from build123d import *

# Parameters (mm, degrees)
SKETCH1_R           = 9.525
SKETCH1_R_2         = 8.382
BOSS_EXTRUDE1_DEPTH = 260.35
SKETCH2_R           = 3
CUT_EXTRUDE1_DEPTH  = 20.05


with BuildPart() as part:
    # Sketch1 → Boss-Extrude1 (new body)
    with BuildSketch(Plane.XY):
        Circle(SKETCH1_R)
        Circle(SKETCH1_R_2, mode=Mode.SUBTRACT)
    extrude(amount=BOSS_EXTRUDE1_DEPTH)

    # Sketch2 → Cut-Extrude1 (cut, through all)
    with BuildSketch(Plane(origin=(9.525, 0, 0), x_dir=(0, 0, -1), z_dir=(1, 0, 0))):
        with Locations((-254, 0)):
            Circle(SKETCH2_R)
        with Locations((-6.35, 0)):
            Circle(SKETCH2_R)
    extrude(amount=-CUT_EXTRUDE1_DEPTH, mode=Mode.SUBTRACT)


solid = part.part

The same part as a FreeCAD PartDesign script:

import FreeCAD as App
import Part
import Sketcher

V = App.Vector
Q = App.Units.Quantity

doc = App.newDocument("Part")
body = doc.addObject("PartDesign::Body", "Body")

# Sketch on XY plane
sketch1 = body.newObject("Sketcher::SketchObject", "Sketch")
sketch1.AttachmentSupport = (doc.getObject("XY_Plane"), [""])
sketch1.MapMode = "FlatFace"
sketch1.addGeometry([
    Part.Circle(V(0, 0, 0), V(0, 0, 1), 10),
    Part.Circle(V(0, 0, 0), V(0, 0, 1), 8),
], False)
sketch1.addConstraint([
    Sketcher.Constraint("Coincident", 0, 3, -1, 1),
    Sketcher.Constraint("Coincident", 1, 3, -1, 1),
    Sketcher.Constraint("Diameter", 0, Q("0.75 in")),
    Sketcher.Constraint("Diameter", 1, Q("0.66 in")),
])
pad1 = body.newObject("PartDesign::Pad", "Pad")
pad1.Profile = sketch1
pad1.Length = Q("10.25 in")

# Sketch on YZ plane
sketch2 = body.newObject("Sketcher::SketchObject", "Sketch001")
sketch2.AttachmentSupport = (doc.getObject("YZ_Plane"), [""])
sketch2.MapMode = "FlatFace"
sketch2.AttachmentOffset = App.Placement(V(0, 0, 0.375 * 25.4), App.Rotation())
sketch2.addGeometry([
    Part.Circle(V(0, 254, 0), V(0, 0, 1), 3),
    Part.Circle(V(0, 6.3, 0), V(0, 0, 1), 3),
], False)
sketch2.addConstraint([
    Sketcher.Constraint("Equal", 0, 1),
    Sketcher.Constraint("PointOnObject", 0, 3, -2),
    Sketcher.Constraint("PointOnObject", 1, 3, -2),
    Sketcher.Constraint("DistanceY", -1, 1, 0, 3, Q("10 in")),
    Sketcher.Constraint("Diameter", 0, 6.0),
    Sketcher.Constraint("DistanceY", -1, 1, 1, 3, Q("0.25 in")),
])
pocket1 = body.newObject("PartDesign::Pocket", "Pocket")
pocket1.Profile = sketch2
pocket1.Type = "ThroughAll"

doc.recompute()
